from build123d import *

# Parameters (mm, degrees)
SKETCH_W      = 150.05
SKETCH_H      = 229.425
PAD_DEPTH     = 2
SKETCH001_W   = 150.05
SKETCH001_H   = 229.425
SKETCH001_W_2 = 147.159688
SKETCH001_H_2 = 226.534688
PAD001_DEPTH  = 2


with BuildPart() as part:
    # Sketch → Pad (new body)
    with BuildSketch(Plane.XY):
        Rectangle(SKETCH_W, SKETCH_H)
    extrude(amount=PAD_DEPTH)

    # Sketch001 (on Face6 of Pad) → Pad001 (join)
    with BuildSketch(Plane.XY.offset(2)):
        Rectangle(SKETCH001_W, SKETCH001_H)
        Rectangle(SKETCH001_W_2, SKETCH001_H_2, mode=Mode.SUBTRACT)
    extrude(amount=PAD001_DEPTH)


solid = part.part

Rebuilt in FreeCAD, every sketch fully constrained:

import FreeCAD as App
import Part
import Sketcher

V = App.Vector


def add_polygon(sketch, points):
    """Adds a closed chain of lines whose ends are joined by coincident constraints."""
    first, n = sketch.GeometryCount, len(points)
    for a, b in zip(points, points[1:] + points[:1]):
        sketch.addGeometry(Part.LineSegment(App.Vector(*a, 0), App.Vector(*b, 0)), False)
    for i in range(n):
        sketch.addConstraint(Sketcher.Constraint("Coincident", first + i, 2, first + (i + 1) % n, 1))

doc = App.newDocument("Part")
body = doc.addObject("PartDesign::Body", "Body")

# Sketch on XY plane
sketch1 = doc.addObject("Sketcher::SketchObject", "Sketch")
body.addObject(sketch1)
sketch1.AttachmentSupport = (doc.XY_Plane, [""])
sketch1.MapMode = "FlatFace"
add_polygon(sketch1, [(-75, 115), (-75, -115), (75, -115), (75, 115)])  # lines 0-3
sketch1.addConstraint([
    Sketcher.Constraint("Vertical", 0),
    Sketcher.Constraint("Horizontal", 1),
    Sketcher.Constraint("Vertical", 2),
    Sketcher.Constraint("Horizontal", 3),
    Sketcher.Constraint("Symmetric", 0, 2, 2, 2, -1, 1),
    Sketcher.Constraint("DistanceX", 1, 1, 1, 2, 150.05),
    Sketcher.Constraint("DistanceY", 0, 2, 0, 1, 229.425),
])
pad1 = doc.addObject("PartDesign::Pad", "Pad")
body.addObject(pad1)
pad1.Profile = sketch1
pad1.Length = 2

# Sketch on XY plane
sketch2 = doc.addObject("Sketcher::SketchObject", "Sketch001")
body.addObject(sketch2)
sketch2.AttachmentSupport = (doc.XY_Plane, [""])
sketch2.MapMode = "FlatFace"
sketch2.AttachmentOffset = App.Placement(V(0, 0, 2), App.Rotation())
add_polygon(sketch2, [(-75, 115), (-75, -115), (75, -115), (75, 115)])  # lines 0-3
add_polygon(sketch2, [(74, -113), (-74, -113), (-74, 113), (74, 113)])  # lines 4-7
sketch2.addConstraint([
    Sketcher.Constraint("Vertical", 0),
    Sketcher.Constraint("Horizontal", 1),
    Sketcher.Constraint("Vertical", 2),
    Sketcher.Constraint("Horizontal", 3),
    Sketcher.Constraint("Horizontal", 4),
    Sketcher.Constraint("Vertical", 5),
    Sketcher.Constraint("Horizontal", 6),
    Sketcher.Constraint("Vertical", 7),
    Sketcher.Constraint("Symmetric", 0, 2, 2, 2, -1, 1),
    Sketcher.Constraint("Symmetric", 4, 2, 6, 2, -1, 1),
    Sketcher.Constraint("DistanceX", 1, 1, 1, 2, 150.05),
    Sketcher.Constraint("DistanceY", 0, 2, 0, 1, 229.425),
    Sketcher.Constraint("DistanceX", 4, 2, 4, 1, 147.159688),
    Sketcher.Constraint("DistanceY", 5, 1, 5, 2, 226.534688),
])
pad2 = doc.addObject("PartDesign::Pad", "Pad001")
body.addObject(pad2)
pad2.Profile = sketch2
pad2.Length = 2

doc.recompute()
